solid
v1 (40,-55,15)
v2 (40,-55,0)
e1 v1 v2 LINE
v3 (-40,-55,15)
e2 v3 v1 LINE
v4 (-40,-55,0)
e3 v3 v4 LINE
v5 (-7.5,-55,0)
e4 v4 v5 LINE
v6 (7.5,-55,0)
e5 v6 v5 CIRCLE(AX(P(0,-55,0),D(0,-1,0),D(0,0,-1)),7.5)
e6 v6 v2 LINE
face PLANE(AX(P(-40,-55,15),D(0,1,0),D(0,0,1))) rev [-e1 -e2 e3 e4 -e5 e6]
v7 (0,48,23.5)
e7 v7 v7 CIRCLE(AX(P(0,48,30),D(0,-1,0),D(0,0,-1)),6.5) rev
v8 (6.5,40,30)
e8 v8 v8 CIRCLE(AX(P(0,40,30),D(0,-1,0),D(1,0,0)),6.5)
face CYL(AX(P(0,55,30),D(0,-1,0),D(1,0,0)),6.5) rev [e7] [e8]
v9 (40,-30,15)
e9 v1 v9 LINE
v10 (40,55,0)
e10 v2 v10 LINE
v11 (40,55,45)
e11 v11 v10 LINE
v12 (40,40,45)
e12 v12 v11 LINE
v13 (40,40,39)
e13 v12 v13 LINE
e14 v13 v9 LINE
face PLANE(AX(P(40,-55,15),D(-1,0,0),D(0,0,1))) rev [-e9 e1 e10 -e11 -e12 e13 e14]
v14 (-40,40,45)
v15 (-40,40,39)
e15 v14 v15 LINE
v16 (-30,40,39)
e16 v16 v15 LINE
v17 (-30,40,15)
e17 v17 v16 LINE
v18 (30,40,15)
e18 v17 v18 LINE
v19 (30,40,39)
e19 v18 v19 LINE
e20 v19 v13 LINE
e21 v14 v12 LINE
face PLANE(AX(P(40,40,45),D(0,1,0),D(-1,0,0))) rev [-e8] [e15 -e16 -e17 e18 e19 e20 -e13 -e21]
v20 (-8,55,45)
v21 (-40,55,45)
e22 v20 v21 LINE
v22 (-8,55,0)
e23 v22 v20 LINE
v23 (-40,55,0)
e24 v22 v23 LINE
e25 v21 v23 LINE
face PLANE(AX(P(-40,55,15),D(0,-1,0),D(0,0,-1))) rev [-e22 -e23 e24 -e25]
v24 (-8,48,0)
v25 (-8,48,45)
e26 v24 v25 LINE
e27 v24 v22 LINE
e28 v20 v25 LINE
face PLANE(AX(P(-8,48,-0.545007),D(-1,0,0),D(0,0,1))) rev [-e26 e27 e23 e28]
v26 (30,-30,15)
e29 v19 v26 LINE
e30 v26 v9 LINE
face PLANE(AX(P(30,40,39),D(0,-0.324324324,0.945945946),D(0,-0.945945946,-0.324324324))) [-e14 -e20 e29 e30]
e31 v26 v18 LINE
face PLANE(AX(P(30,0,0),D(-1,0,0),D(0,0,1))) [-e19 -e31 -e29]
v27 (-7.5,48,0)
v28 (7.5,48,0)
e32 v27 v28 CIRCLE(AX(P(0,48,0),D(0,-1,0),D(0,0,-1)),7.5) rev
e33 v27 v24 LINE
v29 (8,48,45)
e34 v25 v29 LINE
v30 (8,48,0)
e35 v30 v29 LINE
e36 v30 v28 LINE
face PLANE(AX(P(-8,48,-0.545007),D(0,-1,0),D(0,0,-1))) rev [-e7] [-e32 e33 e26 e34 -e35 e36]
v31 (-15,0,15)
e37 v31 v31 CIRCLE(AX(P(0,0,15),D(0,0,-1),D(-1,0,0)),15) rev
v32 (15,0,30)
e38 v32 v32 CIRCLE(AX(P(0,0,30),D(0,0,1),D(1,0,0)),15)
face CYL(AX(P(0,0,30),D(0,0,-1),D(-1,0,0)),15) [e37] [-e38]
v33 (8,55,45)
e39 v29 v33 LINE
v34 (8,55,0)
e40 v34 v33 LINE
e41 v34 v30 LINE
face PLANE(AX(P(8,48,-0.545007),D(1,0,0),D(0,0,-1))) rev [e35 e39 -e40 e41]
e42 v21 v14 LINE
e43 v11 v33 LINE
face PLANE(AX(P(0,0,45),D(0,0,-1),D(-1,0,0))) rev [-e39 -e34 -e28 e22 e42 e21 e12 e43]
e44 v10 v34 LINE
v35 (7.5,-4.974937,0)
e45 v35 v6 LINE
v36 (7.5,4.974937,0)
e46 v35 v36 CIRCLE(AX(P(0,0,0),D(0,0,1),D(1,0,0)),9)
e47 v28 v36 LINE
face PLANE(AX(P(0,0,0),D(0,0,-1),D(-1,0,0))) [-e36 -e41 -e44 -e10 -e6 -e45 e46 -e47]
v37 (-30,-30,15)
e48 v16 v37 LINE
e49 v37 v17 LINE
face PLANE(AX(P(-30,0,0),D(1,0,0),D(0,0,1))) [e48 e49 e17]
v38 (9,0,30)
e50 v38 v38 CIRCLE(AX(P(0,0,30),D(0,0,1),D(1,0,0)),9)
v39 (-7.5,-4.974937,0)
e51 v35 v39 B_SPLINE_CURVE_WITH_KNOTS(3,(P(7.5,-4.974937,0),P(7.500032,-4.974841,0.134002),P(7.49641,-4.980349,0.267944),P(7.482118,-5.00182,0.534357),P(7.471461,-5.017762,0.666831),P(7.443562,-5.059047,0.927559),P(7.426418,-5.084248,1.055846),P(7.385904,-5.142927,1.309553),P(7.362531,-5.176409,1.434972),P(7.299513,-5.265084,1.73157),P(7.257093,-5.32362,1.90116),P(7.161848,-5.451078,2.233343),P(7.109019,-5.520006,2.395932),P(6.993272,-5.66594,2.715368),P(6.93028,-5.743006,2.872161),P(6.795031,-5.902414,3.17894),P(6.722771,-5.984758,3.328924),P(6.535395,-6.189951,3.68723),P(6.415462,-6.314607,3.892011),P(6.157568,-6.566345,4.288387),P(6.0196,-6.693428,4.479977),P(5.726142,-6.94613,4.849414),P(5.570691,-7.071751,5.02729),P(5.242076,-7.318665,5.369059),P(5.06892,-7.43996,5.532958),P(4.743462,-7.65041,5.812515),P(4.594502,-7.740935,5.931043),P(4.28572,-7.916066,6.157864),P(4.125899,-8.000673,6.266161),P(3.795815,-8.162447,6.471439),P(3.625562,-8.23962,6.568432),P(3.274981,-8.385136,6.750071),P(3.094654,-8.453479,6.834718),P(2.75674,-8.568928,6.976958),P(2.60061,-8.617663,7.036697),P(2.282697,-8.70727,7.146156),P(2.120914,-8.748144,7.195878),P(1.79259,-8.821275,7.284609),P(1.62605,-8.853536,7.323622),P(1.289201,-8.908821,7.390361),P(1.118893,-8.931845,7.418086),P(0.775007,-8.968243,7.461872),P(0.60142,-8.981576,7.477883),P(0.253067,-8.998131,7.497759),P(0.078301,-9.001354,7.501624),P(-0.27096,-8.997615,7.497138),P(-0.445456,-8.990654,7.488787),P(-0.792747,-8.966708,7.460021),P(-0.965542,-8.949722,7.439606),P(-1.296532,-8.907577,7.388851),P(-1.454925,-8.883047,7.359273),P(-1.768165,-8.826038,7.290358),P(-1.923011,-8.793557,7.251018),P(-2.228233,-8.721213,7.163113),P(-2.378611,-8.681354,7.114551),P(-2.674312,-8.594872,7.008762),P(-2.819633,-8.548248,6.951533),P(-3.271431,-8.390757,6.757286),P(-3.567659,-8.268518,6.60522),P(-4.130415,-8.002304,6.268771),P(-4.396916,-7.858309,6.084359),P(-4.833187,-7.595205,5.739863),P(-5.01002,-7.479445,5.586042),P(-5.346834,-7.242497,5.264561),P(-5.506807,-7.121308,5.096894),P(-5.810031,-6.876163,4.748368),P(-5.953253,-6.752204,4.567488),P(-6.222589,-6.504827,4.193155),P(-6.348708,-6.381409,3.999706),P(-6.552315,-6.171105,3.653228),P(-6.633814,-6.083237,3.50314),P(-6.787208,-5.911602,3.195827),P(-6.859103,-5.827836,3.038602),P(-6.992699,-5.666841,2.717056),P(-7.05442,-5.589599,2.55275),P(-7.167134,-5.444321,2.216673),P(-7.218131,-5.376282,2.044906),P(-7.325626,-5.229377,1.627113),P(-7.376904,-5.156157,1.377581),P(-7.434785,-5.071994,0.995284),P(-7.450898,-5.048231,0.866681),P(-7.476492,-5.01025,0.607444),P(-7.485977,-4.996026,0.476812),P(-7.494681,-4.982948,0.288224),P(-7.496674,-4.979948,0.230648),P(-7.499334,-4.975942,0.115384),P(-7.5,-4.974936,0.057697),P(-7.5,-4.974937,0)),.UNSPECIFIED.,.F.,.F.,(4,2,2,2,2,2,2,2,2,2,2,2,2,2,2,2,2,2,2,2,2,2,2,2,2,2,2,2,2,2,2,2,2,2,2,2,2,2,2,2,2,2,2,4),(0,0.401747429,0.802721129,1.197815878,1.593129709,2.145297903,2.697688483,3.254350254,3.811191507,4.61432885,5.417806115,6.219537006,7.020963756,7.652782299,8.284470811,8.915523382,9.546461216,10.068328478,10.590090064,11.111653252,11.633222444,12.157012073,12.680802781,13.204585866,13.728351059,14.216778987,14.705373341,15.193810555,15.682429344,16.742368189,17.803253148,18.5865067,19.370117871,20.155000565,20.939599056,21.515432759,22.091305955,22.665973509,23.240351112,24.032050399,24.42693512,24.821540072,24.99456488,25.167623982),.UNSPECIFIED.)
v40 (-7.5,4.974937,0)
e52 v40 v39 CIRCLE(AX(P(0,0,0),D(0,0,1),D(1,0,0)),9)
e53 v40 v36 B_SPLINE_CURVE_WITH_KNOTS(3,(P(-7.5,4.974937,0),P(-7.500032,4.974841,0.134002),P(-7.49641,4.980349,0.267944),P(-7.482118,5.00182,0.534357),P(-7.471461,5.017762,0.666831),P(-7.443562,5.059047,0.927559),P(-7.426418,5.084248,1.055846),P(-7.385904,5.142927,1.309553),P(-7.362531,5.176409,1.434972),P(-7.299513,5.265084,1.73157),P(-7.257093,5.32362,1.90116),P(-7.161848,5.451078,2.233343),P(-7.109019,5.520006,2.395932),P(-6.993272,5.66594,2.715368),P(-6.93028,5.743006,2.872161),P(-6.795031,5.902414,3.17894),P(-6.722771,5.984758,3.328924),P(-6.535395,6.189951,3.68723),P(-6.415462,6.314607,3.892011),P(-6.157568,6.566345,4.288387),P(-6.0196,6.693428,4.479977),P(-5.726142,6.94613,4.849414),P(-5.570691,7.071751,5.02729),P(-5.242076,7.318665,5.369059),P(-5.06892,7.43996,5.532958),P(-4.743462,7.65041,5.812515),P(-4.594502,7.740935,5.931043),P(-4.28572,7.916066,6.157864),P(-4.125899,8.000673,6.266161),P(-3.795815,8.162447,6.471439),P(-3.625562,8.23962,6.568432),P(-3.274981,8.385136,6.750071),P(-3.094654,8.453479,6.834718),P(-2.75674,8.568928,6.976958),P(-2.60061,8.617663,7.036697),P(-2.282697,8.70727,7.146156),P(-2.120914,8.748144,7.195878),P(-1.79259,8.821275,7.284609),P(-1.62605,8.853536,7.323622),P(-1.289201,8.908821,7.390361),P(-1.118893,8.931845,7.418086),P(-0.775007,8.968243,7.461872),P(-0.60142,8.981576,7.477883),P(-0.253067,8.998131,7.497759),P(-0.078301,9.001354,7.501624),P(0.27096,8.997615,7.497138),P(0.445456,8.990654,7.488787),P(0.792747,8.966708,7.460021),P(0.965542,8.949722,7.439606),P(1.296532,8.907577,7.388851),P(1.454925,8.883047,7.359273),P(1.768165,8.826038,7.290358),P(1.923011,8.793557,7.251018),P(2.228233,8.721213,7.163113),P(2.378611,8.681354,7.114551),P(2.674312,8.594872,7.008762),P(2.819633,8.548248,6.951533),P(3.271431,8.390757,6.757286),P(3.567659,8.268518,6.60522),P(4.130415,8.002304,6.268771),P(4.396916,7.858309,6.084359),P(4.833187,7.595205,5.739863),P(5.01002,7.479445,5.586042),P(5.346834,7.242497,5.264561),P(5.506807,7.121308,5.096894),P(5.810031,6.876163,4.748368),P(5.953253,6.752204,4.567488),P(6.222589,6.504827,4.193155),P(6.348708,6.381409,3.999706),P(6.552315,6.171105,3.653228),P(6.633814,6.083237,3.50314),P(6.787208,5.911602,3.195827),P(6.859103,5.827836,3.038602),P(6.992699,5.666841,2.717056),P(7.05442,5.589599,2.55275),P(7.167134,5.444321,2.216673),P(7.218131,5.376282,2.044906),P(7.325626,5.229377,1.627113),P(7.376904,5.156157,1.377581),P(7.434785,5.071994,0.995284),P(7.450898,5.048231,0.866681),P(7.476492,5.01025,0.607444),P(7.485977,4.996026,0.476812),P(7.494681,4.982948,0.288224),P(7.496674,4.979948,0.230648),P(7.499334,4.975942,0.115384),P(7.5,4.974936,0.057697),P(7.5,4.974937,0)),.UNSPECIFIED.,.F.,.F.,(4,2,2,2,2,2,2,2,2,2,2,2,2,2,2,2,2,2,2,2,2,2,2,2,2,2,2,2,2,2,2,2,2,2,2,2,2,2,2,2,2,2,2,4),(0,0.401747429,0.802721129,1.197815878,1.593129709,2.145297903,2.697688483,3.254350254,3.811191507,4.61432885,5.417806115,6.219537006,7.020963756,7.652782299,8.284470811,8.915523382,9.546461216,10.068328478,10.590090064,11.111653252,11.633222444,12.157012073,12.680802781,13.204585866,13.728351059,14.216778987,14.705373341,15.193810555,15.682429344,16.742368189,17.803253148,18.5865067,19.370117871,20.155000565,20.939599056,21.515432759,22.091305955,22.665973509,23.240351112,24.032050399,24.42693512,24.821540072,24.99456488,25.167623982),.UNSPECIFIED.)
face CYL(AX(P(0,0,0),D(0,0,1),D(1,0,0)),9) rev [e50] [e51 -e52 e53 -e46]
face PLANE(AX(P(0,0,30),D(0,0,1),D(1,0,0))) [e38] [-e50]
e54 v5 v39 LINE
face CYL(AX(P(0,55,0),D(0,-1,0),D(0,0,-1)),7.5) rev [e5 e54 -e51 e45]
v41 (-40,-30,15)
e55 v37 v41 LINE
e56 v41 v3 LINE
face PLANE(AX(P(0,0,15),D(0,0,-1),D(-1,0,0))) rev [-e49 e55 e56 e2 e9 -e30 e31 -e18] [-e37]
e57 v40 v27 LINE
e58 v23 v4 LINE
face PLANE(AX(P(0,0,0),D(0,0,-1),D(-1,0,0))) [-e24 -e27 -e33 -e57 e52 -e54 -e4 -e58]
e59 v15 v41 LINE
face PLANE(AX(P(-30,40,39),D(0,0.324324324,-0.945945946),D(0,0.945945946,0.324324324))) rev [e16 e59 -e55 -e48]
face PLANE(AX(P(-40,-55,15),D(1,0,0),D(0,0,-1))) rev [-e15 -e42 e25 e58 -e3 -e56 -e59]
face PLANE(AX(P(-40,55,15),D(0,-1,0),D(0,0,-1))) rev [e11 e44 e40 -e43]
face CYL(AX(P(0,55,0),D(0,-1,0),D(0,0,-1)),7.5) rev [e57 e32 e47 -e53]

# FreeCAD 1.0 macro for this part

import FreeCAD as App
import Part
import Sketcher
from FreeCAD import Vector
Q = App.Units.Quantity


def add_polygon(sketch, points):
    """Adds a closed chain of lines whose ends are joined by coincident constraints."""
    first, n = sketch.GeometryCount, len(points)
    for a, b in zip(points, points[1:] + points[:1]):
        sketch.addGeometry(Part.LineSegment(App.Vector(*a, 0), App.Vector(*b, 0)), False)
    for i in range(n):
        sketch.addConstraint(Sketcher.Constraint("Coincident", first + i, 2, first + (i + 1) % n, 1))

doc = App.newDocument("Part")
body = doc.addObject("PartDesign::Body", "Body")

# Sketch on XY plane
sketch1 = body.newObject("Sketcher::SketchObject", "Sketch")
sketch1.AttachmentSupport = (doc.getObject("XY_Plane"), [""])
sketch1.MapMode = "FlatFace"
add_polygon(sketch1, [(-40, 55), (-40, -55), (40, -55), (40, 55)])  # lines 0-3
sketch1.addConstraint([
    Sketcher.Constraint("Vertical", 0),
    Sketcher.Constraint("Horizontal", 1),
    Sketcher.Constraint("Vertical", 2),
    Sketcher.Constraint("Horizontal", 3),
    Sketcher.Constraint("Symmetric", 0, 2, 2, 2, -1, 1),
    Sketcher.Constraint("DistanceX", 1, 1, 1, 2, Q("80 mm")),
    Sketcher.Constraint("DistanceY", 0, 2, 0, 1, Q("110 mm")),
])
pad1 = body.newObject("PartDesign::Pad", "Pad")
pad1.Profile = sketch1
pad1.Length = 15

# Sketch on XY plane
sketch2 = body.newObject("Sketcher::SketchObject", "Sketch001")
sketch2.AttachmentSupport = (doc.getObject("XY_Plane"), [""])
sketch2.MapMode = "FlatFace"
sketch2.AttachmentOffset = App.Placement(Vector(0, 0, 15), App.Rotation())
add_polygon(sketch2, [(-40, 55), (-40, 40), (40, 40), (40, 55)])  # lines 0-3
sketch2.addConstraint([
    Sketcher.Constraint("Vertical", 0),
    Sketcher.Constraint("Horizontal", 1),
    Sketcher.Constraint("Vertical", 2),
    Sketcher.Constraint("Horizontal", 3),
    Sketcher.Constraint("DistanceX", 1, 1, 1, 2, Q("80 mm")),
    Sketcher.Constraint("DistanceY", 0, 2, 0, 1, Q("15 mm")),
    Sketcher.Constraint("DistanceX", 0, 2, -1, 1, Q("40 mm")),
    Sketcher.Constraint("DistanceY", -1, 1, 0, 2, Q("40 mm")),
])
pad2 = body.newObject("PartDesign::Pad", "Pad001")
pad2.Profile = sketch2
pad2.Length = 30

# Sketch on YZ plane
sketch3 = body.newObject("Sketcher::SketchObject", "Sketch002")
sketch3.AttachmentSupport = (doc.getObject("YZ_Plane"), [""])
sketch3.MapMode = "FlatFace"
sketch3.AttachmentOffset = App.Placement(Vector(0, 0, 40), App.Rotation())
add_polygon(sketch3, [(40, 39), (-30, 15), (40, 15)])  # lines 0-2
sketch3.addConstraint([
    Sketcher.Constraint("Horizontal", 1),
    Sketcher.Constraint("Vertical", 2),
    Sketcher.Constraint("DistanceX", 1, 1, 1, 2, Q("70 mm")),
    Sketcher.Constraint("DistanceY", 2, 1, 2, 2, Q("24 mm")),
    Sketcher.Constraint("DistanceX", 0, 2, -1, 1, Q("30 mm")),
    Sketcher.Constraint("DistanceY", -1, 1, 0, 2, Q("15 mm")),
])
pad3 = body.newObject("PartDesign::Pad", "Pad002")
pad3.Profile = sketch3
pad3.Length = 10
pad3.Reversed = True
doc.recompute()

mirrored = body.newObject("PartDesign::Mirrored", "Mirrored")
mirrored.Originals = [pad3]
mirrored.MirrorPlane = (doc.getObject("YZ_Plane"), [""])
body.Tip = mirrored

# Sketch on XY plane
sketch4 = body.newObject("Sketcher::SketchObject", "Sketch003")
sketch4.AttachmentSupport = (doc.getObject("XY_Plane"), [""])
sketch4.MapMode = "FlatFace"
sketch4.AttachmentOffset = App.Placement(Vector(0, 0, 15), App.Rotation())
sketch4.addGeometry(Part.Circle(Vector(0, 0, 0), Vector(0, 0, 1), 15), False)
sketch4.addConstraint([
    Sketcher.Constraint("Coincident", 0, 3, -1, 1),
    Sketcher.Constraint("Diameter", 0, Q("30 mm")),
])
pad4 = body.newObject("PartDesign::Pad", "Pad003")
pad4.Profile = sketch4
pad4.Length = 15

# Sketch on XY plane
sketch5 = body.newObject("Sketcher::SketchObject", "Sketch004")
sketch5.AttachmentSupport = (doc.getObject("XY_Plane"), [""])
sketch5.MapMode = "FlatFace"
sketch5.AttachmentOffset = App.Placement(Vector(0, 0, 30), App.Rotation())
sketch5.addGeometry(Part.Circle(Vector(0, 0, 0), Vector(0, 0, 1), 9), False)
sketch5.addConstraint([
    Sketcher.Constraint("Coincident", 0, 3, -1, 1),
    Sketcher.Constraint("Diameter", 0, Q("18 mm")),
])
pocket1 = body.newObject("PartDesign::Pocket", "Pocket")
pocket1.Profile = sketch5
pocket1.Type = "ThroughAll"

# Sketch on XZ plane
sketch6 = body.newObject("Sketcher::SketchObject", "Sketch005")
sketch6.AttachmentSupport = (doc.getObject("XZ_Plane"), [""])
sketch6.MapMode = "FlatFace"
sketch6.AttachmentOffset = App.Placement(Vector(0, 0, -40), App.Rotation())
sketch6.addGeometry(Part.Circle(Vector(0, 30, 0), Vector(0, 0, 1), 6), False)
sketch6.addConstraint([
    Sketcher.Constraint("PointOnObject", 0, 3, -2),
    Sketcher.Constraint("Diameter", 0, Q("13 mm")),
    Sketcher.Constraint("DistanceY", -1, 1, 0, 3, Q("30 mm")),
])
pocket2 = body.newObject("PartDesign::Pocket", "Pocket001")
pocket2.Profile = sketch6
pocket2.Type = "ThroughAll"

# Sketch on XZ plane
sketch7 = body.newObject("Sketcher::SketchObject", "Sketch006")
sketch7.AttachmentSupport = (doc.getObject("XZ_Plane"), [""])
sketch7.MapMode = "FlatFace"
sketch7.AttachmentOffset = App.Placement(Vector(0, 0, 55), App.Rotation())
sketch7.addGeometry(Part.Circle(Vector(0, 0, 0), Vector(0, 0, 1), 8), False)
sketch7.addConstraint([
    Sketcher.Constraint("Coincident", 0, 3, -1, 1),
    Sketcher.Constraint("Diameter", 0, Q("15 mm")),
])
pocket3 = body.newObject("PartDesign::Pocket", "Pocket002")
pocket3.Profile = sketch7
pocket3.Type = "ThroughAll"

# Sketch on XY plane
sketch8 = body.newObject("Sketcher::SketchObject", "Sketch007")
sketch8.AttachmentSupport = (doc.getObject("XY_Plane"), [""])
sketch8.MapMode = "FlatFace"
sketch8.AttachmentOffset = App.Placement(Vector(0, 0, 45), App.Rotation())
add_polygon(sketch8, [(-8, 55), (-8, 48), (8, 48), (8, 55)])  # lines 0-3
sketch8.addConstraint([
    Sketcher.Constraint("Vertical", 0),
    Sketcher.Constraint("Horizontal", 1),
    Sketcher.Constraint("Vertical", 2),
    Sketcher.Constraint("Horizontal", 3),
    Sketcher.Constraint("DistanceX", 1, 1, 1, 2, Q("16 mm")),
    Sketcher.Constraint("DistanceY", 0, 2, 0, 1, Q("7 mm")),
    Sketcher.Constraint("DistanceX", 0, 2, -1, 1, Q("8 mm")),
    Sketcher.Constraint("DistanceY", -1, 1, 0, 2, Q("48 mm")),
])
pocket4 = body.newObject("PartDesign::Pocket", "Pocket003")
pocket4.Profile = sketch8
pocket4.Type = "ThroughAll"

doc.recompute()
